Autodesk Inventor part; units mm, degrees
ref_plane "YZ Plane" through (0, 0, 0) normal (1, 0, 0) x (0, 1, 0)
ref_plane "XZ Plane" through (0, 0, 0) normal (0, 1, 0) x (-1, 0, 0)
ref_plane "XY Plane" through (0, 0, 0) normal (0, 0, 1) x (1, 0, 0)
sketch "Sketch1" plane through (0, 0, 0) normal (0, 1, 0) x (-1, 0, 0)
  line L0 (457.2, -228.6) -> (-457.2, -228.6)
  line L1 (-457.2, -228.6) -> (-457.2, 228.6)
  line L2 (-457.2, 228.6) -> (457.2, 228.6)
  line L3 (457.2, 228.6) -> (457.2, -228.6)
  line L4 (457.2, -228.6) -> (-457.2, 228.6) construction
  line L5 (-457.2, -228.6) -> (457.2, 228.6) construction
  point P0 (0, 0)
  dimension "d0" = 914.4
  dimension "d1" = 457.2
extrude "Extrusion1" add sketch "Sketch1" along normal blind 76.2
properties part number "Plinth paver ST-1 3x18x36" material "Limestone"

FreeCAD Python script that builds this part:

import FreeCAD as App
import Part
import Sketcher

V = App.Vector
Q = App.Units.Quantity

doc = App.newDocument("Part")
body = doc.addObject("PartDesign::Body", "Body")

# Sketch on XZ plane
sketch1 = body.newObject("Sketcher::SketchObject", "Sketch")
sketch1.AttachmentSupport = (doc.getObject("XZ_Plane"), [""])
sketch1.MapMode = "FlatFace"
sketch1.addGeometry([
    Part.LineSegment(V(457, -229, 0), V(-457, -229, 0)),
    Part.LineSegment(V(-457, -229, 0), V(-457, 229, 0)),
    Part.LineSegment(V(-457, 229, 0), V(457, 229, 0)),
    Part.LineSegment(V(457, 229, 0), V(457, -229, 0)),
], False)
sketch1.addConstraint([
    Sketcher.Constraint("Coincident", 0, 2, 1, 1),
    Sketcher.Constraint("Coincident", 1, 2, 2, 1),
    Sketcher.Constraint("Coincident", 2, 2, 3, 1),
    Sketcher.Constraint("Coincident", 3, 2, 0, 1),
    Sketcher.Constraint("Horizontal", 0),
    Sketcher.Constraint("Vertical", 1),
    Sketcher.Constraint("Horizontal", 2),
    Sketcher.Constraint("Vertical", 3),
    Sketcher.Constraint("Symmetric", 0, 2, 2, 2, -1, 1),
    Sketcher.Constraint("DistanceX", 0, 2, 0, 1, Q("36 in")),
    Sketcher.Constraint("DistanceY", 1, 1, 1, 2, Q("18 in")),
])
pad1 = body.newObject("PartDesign::Pad", "Pad")
pad1.Profile = sketch1
pad1.Length = Q("3 in")
pad1.Reversed = True

doc.recompute()
